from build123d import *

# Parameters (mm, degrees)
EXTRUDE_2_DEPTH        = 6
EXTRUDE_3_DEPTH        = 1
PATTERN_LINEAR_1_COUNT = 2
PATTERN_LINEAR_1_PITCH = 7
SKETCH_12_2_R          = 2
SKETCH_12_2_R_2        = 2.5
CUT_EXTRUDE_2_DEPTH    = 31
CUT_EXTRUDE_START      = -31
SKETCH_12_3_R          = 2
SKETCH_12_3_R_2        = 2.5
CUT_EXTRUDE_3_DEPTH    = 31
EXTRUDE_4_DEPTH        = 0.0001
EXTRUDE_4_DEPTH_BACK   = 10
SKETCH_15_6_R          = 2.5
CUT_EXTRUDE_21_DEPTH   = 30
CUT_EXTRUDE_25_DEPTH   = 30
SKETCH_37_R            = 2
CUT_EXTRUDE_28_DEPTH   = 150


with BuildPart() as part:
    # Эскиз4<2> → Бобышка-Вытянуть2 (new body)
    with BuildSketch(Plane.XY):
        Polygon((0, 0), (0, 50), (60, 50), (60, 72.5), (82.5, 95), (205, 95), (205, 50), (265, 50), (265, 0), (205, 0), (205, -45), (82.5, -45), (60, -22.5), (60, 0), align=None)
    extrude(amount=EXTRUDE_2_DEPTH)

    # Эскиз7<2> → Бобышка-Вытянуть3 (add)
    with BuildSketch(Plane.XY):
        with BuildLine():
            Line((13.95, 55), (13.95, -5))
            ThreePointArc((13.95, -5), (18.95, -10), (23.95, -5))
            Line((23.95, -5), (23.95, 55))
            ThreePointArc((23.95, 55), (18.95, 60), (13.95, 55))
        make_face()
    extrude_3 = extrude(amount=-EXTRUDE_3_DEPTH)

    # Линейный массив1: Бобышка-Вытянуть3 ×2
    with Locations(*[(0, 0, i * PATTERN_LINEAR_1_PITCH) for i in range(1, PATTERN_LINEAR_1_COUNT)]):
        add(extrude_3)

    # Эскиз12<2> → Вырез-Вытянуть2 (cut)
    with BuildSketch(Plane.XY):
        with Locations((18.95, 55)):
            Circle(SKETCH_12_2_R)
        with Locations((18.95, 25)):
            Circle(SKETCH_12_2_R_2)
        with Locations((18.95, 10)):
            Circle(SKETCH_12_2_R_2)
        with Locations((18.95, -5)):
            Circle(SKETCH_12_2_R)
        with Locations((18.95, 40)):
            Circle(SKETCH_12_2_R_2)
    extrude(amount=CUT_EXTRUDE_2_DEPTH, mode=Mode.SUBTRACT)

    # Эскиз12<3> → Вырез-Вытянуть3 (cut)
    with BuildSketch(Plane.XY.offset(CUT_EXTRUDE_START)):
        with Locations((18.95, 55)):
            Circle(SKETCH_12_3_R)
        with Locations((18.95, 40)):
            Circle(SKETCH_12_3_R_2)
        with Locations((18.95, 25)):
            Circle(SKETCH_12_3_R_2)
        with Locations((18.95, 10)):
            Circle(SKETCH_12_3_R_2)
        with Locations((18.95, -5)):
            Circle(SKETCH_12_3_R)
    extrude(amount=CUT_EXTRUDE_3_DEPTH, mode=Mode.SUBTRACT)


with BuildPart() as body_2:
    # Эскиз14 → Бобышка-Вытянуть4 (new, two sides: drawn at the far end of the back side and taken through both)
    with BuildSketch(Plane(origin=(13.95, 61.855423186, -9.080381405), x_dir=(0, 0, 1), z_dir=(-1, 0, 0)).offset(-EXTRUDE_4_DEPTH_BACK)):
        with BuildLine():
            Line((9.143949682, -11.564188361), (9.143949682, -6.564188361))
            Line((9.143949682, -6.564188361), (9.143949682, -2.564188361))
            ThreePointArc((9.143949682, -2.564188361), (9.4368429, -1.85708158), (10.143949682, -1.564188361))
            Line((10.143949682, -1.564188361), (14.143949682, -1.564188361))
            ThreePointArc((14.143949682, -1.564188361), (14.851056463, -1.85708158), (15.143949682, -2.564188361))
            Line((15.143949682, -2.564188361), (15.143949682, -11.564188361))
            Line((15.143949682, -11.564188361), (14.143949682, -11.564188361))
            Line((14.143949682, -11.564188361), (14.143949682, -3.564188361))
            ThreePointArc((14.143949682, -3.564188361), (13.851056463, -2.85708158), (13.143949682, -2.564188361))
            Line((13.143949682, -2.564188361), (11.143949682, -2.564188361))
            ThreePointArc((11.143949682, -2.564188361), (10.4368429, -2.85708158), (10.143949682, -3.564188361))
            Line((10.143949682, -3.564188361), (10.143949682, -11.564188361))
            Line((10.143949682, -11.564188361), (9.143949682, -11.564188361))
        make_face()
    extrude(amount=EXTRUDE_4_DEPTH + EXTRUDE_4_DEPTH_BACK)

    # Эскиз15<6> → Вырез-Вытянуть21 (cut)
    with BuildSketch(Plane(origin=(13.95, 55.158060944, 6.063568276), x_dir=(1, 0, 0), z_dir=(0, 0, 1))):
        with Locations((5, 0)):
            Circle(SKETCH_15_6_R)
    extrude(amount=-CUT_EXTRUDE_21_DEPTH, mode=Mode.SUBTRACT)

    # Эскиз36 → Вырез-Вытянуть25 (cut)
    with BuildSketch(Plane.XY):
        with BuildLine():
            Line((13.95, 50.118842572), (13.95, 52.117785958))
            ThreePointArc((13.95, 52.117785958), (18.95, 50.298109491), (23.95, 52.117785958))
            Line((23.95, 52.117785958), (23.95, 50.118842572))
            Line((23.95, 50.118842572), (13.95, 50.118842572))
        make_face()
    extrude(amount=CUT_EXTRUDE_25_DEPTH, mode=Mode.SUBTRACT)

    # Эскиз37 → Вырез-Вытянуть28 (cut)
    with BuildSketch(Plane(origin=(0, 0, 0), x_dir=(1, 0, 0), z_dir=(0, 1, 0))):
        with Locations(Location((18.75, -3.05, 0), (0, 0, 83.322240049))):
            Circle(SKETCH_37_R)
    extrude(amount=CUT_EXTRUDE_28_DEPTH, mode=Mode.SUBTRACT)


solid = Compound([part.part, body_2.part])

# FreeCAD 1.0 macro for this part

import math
import FreeCAD as App
import Part
import Sketcher


def add_polygon(sketch, points):
    """Adds a closed chain of lines whose ends are joined by coincident constraints."""
    first, n = sketch.GeometryCount, len(points)
    for a, b in zip(points, points[1:] + points[:1]):
        sketch.addGeometry(Part.LineSegment(App.Vector(*a, 0), App.Vector(*b, 0)), False)
    for i in range(n):
        sketch.addConstraint(Sketcher.Constraint("Coincident", first + i, 2, first + (i + 1) % n, 1))

doc = App.newDocument("Part")
body = doc.addObject("PartDesign::Body", "Body")

# Sketch on XY plane
sketch1 = doc.addObject("Sketcher::SketchObject", "Sketch")
body.addObject(sketch1)
sketch1.AttachmentSupport = (doc.XY_Plane, [""])
sketch1.MapMode = "FlatFace"
add_polygon(sketch1, [(0, 50), (0, 0), (60, 0), (60, -22.5), (82.5, -45), (205, -45), (205, 0), (265, 0), (265, 50), (205, 50), (205, 95), (82.5, 95), (60, 72.5), (60, 50)])  # lines 0-13
sketch1.addConstraint([
    Sketcher.Constraint("Vertical", 0),
    Sketcher.Constraint("Horizontal", 1),
    Sketcher.Constraint("Vertical", 2),
    Sketcher.Constraint("Horizontal", 4),
    Sketcher.Constraint("Vertical", 5),
    Sketcher.Constraint("Horizontal", 6),
    Sketcher.Constraint("Vertical", 7),
    Sketcher.Constraint("Horizontal", 8),
    Sketcher.Constraint("Vertical", 9),
    Sketcher.Constraint("Horizontal", 10),
    Sketcher.Constraint("Vertical", 12),
    Sketcher.Constraint("Horizontal", 13),
    Sketcher.Constraint("Coincident", 0, 2, -1, 1),
    Sketcher.Constraint("PointOnObject", 5, 2, -1),
    Sketcher.Constraint("Perpendicular", 3, 11),
    Sketcher.Constraint("Horizontal", 8, 2, 12, 2),
    Sketcher.Constraint("Vertical", 5, 2, 8, 2),
    Sketcher.Constraint("Vertical", 3, 2, 10, 2),
    Sketcher.Constraint("Vertical", 2, 2, 11, 2),
    Sketcher.Constraint("Equal", 1, 6),
    Sketcher.Constraint("Equal", 5, 9),
    Sketcher.Constraint("Equal", 2, 12),
    Sketcher.Constraint("DistanceX", 1, 1, 1, 2, 60.0),
    Sketcher.Constraint("DistanceY", 0, 2, 0, 1, 50.0),
    Sketcher.Constraint("DistanceY", 5, 1, 5, 2, 45.0),
    Sketcher.Constraint("DistanceX", 4, 1, 4, 2, 122.5),
    Sketcher.Constraint("DistanceY", 2, 2, 2, 1, 22.5),
])
pad1 = doc.addObject("PartDesign::Pad", "Pad")
body.addObject(pad1)
pad1.Profile = sketch1
pad1.Length = 6

# Sketch on XY plane
sketch2 = doc.addObject("Sketcher::SketchObject", "Sketch001")
body.addObject(sketch2)
sketch2.AttachmentSupport = (doc.XY_Plane, [""])
sketch2.MapMode = "FlatFace"
sketch2.addGeometry([
    Part.LineSegment(App.Vector(13.95, 55, 0), App.Vector(13.95, -5, 0)),
    Part.ArcOfCircle(Part.Circle(App.Vector(18.95, -5, 0), App.Vector(0, 0, 1), 5), math.radians(180), math.radians(360)),
    Part.LineSegment(App.Vector(23.95, -5, 0), App.Vector(23.95, 55, 0)),
    Part.ArcOfCircle(Part.Circle(App.Vector(18.95, 55, 0), App.Vector(0, 0, 1), 5), math.radians(0), math.radians(180)),
], False)
sketch2.addConstraint([
    Sketcher.Constraint("Tangent", 0, 2, 1, 1),
    Sketcher.Constraint("Tangent", 1, 2, 2, 1),
    Sketcher.Constraint("Tangent", 2, 2, 3, 1),
    Sketcher.Constraint("Tangent", 3, 2, 0, 1),
    Sketcher.Constraint("Vertical", 0),
    Sketcher.Constraint("Vertical", 2),
    Sketcher.Constraint("Radius", 1, 5.0),
    Sketcher.Constraint("DistanceY", 0, 2, 0, 1, 60.0),
    Sketcher.Constraint("DistanceY", 1, 3, -1, 1, 5.0),
    Sketcher.Constraint("DistanceX", -1, 1, 1, 3, 18.95),
])
pad2 = doc.addObject("PartDesign::Pad", "Pad001")
body.addObject(pad2)
pad2.Profile = sketch2
pad2.Length = 1
pad2.Reversed = True
doc.recompute()

linearpattern = doc.addObject("PartDesign::LinearPattern", "LinearPattern")
body.addObject(linearpattern)
linearpattern.Originals = [pad2]
linearpattern.Direction = (doc.Z_Axis, [""])
linearpattern.Mode = "offset"
linearpattern.Offset = 7
linearpattern.Occurrences = 2
body.Tip = linearpattern

# Sketch on XY plane
sketch3 = doc.addObject("Sketcher::SketchObject", "Sketch002")
body.addObject(sketch3)
sketch3.AttachmentSupport = (doc.XY_Plane, [""])
sketch3.MapMode = "FlatFace"
sketch3.addGeometry([
    Part.Circle(App.Vector(18.95, 55, 0), App.Vector(0, 0, 1), 2),  # 0
    Part.Circle(App.Vector(18.95, 25, 0), App.Vector(0, 0, 1), 2.5),  # 1
    Part.Circle(App.Vector(18.95, 10, 0), App.Vector(0, 0, 1), 2.5),  # 2
    Part.Circle(App.Vector(18.95, -5, 0), App.Vector(0, 0, 1), 2),  # 3
    Part.Circle(App.Vector(18.95, 40, 0), App.Vector(0, 0, 1), 2.5),  # 4
], False)
sketch3.addConstraint([
    Sketcher.Constraint("Equal", 1, 2),
    Sketcher.Constraint("Equal", 0, 3),
    Sketcher.Constraint("Equal", 2, 4),
    Sketcher.Constraint("Vertical", 0, 3, 1, 3),
    Sketcher.Constraint("Vertical", 1, 3, 2, 3),
    Sketcher.Constraint("Vertical", 2, 3, 3, 3),
    Sketcher.Constraint("Vertical", 3, 3, 4, 3),
    Sketcher.Constraint("Diameter", 0, 4.0),
    Sketcher.Constraint("Diameter", 1, 5.0),
    Sketcher.Constraint("DistanceY", -1, 1, 0, 3, 55.0),
    Sketcher.Constraint("DistanceY", -1, 1, 1, 3, 25.0),
    Sketcher.Constraint("DistanceY", -1, 1, 2, 3, 10.0),
    Sketcher.Constraint("DistanceY", 3, 3, -1, 1, 5.0),
    Sketcher.Constraint("DistanceY", -1, 1, 4, 3, 40.0),
    Sketcher.Constraint("DistanceX", -1, 1, 0, 3, 18.95),
])
pocket1 = doc.addObject("PartDesign::Pocket", "Pocket")
body.addObject(pocket1)
pocket1.Profile = sketch3
pocket1.Length = 31
pocket1.Reversed = True

# Sketch on XY plane
sketch4 = doc.addObject("Sketcher::SketchObject", "Sketch003")
body.addObject(sketch4)
sketch4.AttachmentSupport = (doc.XY_Plane, [""])
sketch4.MapMode = "FlatFace"
sketch4.AttachmentOffset = App.Placement(App.Vector(0, 0, -31), App.Rotation())
sketch4.addGeometry([
    Part.Circle(App.Vector(18.95, 55, 0), App.Vector(0, 0, 1), 2),  # 0
    Part.Circle(App.Vector(18.95, 40, 0), App.Vector(0, 0, 1), 2.5),  # 1
    Part.Circle(App.Vector(18.95, 25, 0), App.Vector(0, 0, 1), 2.5),  # 2
    Part.Circle(App.Vector(18.95, 10, 0), App.Vector(0, 0, 1), 2.5),  # 3
    Part.Circle(App.Vector(18.95, -5, 0), App.Vector(0, 0, 1), 2),  # 4
], False)
sketch4.addConstraint([
    Sketcher.Constraint("Equal", 1, 2),
    Sketcher.Constraint("Equal", 2, 3),
    Sketcher.Constraint("Equal", 0, 4),
    Sketcher.Constraint("Vertical", 0, 3, 1, 3),
    Sketcher.Constraint("Vertical", 1, 3, 2, 3),
    Sketcher.Constraint("Vertical", 2, 3, 3, 3),
    Sketcher.Constraint("Vertical", 3, 3, 4, 3),
    Sketcher.Constraint("Diameter", 0, 4.0),
    Sketcher.Constraint("Diameter", 1, 5.0),
    Sketcher.Constraint("DistanceY", -1, 1, 0, 3, 55.0),
    Sketcher.Constraint("DistanceY", -1, 1, 1, 3, 40.0),
    Sketcher.Constraint("DistanceY", -1, 1, 2, 3, 25.0),
    Sketcher.Constraint("DistanceY", -1, 1, 3, 3, 10.0),
    Sketcher.Constraint("DistanceY", 4, 3, -1, 1, 5.0),
    Sketcher.Constraint("DistanceX", -1, 1, 0, 3, 18.95),
])
pocket2 = doc.addObject("PartDesign::Pocket", "Pocket001")
body.addObject(pocket2)
pocket2.Profile = sketch4
pocket2.Length = 31
pocket2.Reversed = True
body2 = doc.addObject("PartDesign::Body", "Body001")

# Sketch on YZ plane
sketch5 = doc.addObject("Sketcher::SketchObject", "Sketch004")
body2.addObject(sketch5)
sketch5.AttachmentSupport = (doc.getObject("YZ_Plane001"), [""])
sketch5.MapMode = "FlatFace"
sketch5.AttachmentOffset = App.Placement(App.Vector(0, 0, 13.95), App.Rotation())
sketch5.addGeometry([
    Part.LineSegment(App.Vector(59.291235, 0.063568, 0), App.Vector(50.291235, 0.063568, 0)),  # 0
    Part.LineSegment(App.Vector(50.291235, 0.063568, 0), App.Vector(50.291235, 1.063568, 0)),  # 1
    Part.LineSegment(App.Vector(50.291235, 1.063568, 0), App.Vector(58.291235, 1.063568, 0)),  # 2
    Part.ArcOfCircle(Part.Circle(App.Vector(58.291235, 2.063568, 0), App.Vector(0, 0, 1), 1), math.radians(-90), math.radians(0)),  # 3
    Part.LineSegment(App.Vector(59.291235, 2.063568, 0), App.Vector(59.291235, 4.063568, 0)),  # 4
    Part.ArcOfCircle(Part.Circle(App.Vector(58.291235, 4.063568, 0), App.Vector(0, 0, 1), 1), math.radians(0), math.radians(90)),  # 5
    Part.LineSegment(App.Vector(58.291235, 5.063568, 0), App.Vector(50.291235, 5.063568, 0)),  # 6
    Part.LineSegment(App.Vector(50.291235, 5.063568, 0), App.Vector(50.291235, 6.063568, 0)),  # 7
    Part.LineSegment(App.Vector(50.291235, 6.063568, 0), App.Vector(59.291235, 6.063568, 0)),  # 8
    Part.ArcOfCircle(Part.Circle(App.Vector(59.291235, 5.063568, 0), App.Vector(0, 0, 1), 1), math.radians(0), math.radians(90)),  # 9
    Part.LineSegment(App.Vector(60.291235, 5.063568, 0), App.Vector(60.291235, 1.063568, 0)),  # 10
    Part.ArcOfCircle(Part.Circle(App.Vector(59.291235, 1.063568, 0), App.Vector(0, 0, 1), 1), math.radians(-90), math.radians(0)),  # 11
], False)
sketch5.addConstraint([
    Sketcher.Constraint("Coincident", 0, 2, 1, 1),
    Sketcher.Constraint("Coincident", 1, 2, 2, 1),
    Sketcher.Constraint("Tangent", 2, 2, 3, 1),
    Sketcher.Constraint("Tangent", 3, 2, 4, 1),
    Sketcher.Constraint("Tangent", 4, 2, 5, 1),
    Sketcher.Constraint("Tangent", 5, 2, 6, 1),
    Sketcher.Constraint("Coincident", 6, 2, 7, 1),
    Sketcher.Constraint("Coincident", 7, 2, 8, 1),
    Sketcher.Constraint("Tangent", 8, 2, 9, 2),
    Sketcher.Constraint("Tangent", 9, 1, 10, 1),
    Sketcher.Constraint("Tangent", 10, 2, 11, 2),
    Sketcher.Constraint("Tangent", 11, 1, 0, 1),
    Sketcher.Constraint("Horizontal", 0),
    Sketcher.Constraint("Vertical", 1),
    Sketcher.Constraint("Horizontal", 2),
    Sketcher.Constraint("Vertical", 4),
    Sketcher.Constraint("Horizontal", 6),
    Sketcher.Constraint("Vertical", 7),
    Sketcher.Constraint("Horizontal", 8),
    Sketcher.Constraint("Vertical", 10),
    Sketcher.Constraint("Equal", 3, 5),
    Sketcher.Constraint("Equal", 5, 9),
    Sketcher.Constraint("Equal", 9, 11),
    Sketcher.Constraint("Horizontal", 11, 3, 1, 2),
    Sketcher.Constraint("Horizontal", 9, 3, 5, 2),
    Sketcher.Constraint("Vertical", 11, 3, 3, 2),
    Sketcher.Constraint("Vertical", 1, 2, 6, 2),
    Sketcher.Constraint("Radius", 3, 1.0),
    Sketcher.Constraint("DistanceX", 0, 2, 0, 1, 9.0),
    Sketcher.Constraint("DistanceY", 4, 1, 4, 2, 2.0),
    Sketcher.Constraint("DistanceY", -1, 1, 3, 3, 2.063568),
    Sketcher.Constraint("DistanceX", -1, 1, 3, 3, 58.291235),
])
pad3 = doc.addObject("PartDesign::Pad", "Pad002")
body2.addObject(pad3)
pad3.Profile = sketch5
pad3.Type = "TwoLengths"
pad3.Length = 0.0001
pad3.Length2 = 10
pad3.Reversed = True

# Sketch on XY plane
sketch6 = doc.addObject("Sketcher::SketchObject", "Sketch005")
body2.addObject(sketch6)
sketch6.AttachmentSupport = (doc.getObject("XY_Plane001"), [""])
sketch6.MapMode = "FlatFace"
sketch6.AttachmentOffset = App.Placement(App.Vector(0, 0, 6.063568), App.Rotation())
sketch6.addGeometry(Part.Circle(App.Vector(18.95, 55.158061, 0), App.Vector(0, 0, 1), 2.5), False)
sketch6.addConstraint([
    Sketcher.Constraint("Diameter", 0, 5.0),
    Sketcher.Constraint("DistanceX", -1, 1, 0, 3, 18.95),
    Sketcher.Constraint("DistanceY", -1, 1, 0, 3, 55.158061),
])
pocket3 = doc.addObject("PartDesign::Pocket", "Pocket002")
body2.addObject(pocket3)
pocket3.Profile = sketch6
pocket3.Length = 30

# Sketch on XY plane
sketch7 = doc.addObject("Sketcher::SketchObject", "Sketch006")
body2.addObject(sketch7)
sketch7.AttachmentSupport = (doc.getObject("XY_Plane001"), [""])
sketch7.MapMode = "FlatFace"
sketch7.addGeometry([
    Part.LineSegment(App.Vector(13.95, 52.117786, 0), App.Vector(13.95, 50.118843, 0)),
    Part.LineSegment(App.Vector(13.95, 50.118843, 0), App.Vector(23.95, 50.118843, 0)),
    Part.LineSegment(App.Vector(23.95, 50.118843, 0), App.Vector(23.95, 52.117786, 0)),
    Part.ArcOfCircle(Part.Circle(App.Vector(18.95, 58.077301, 0), App.Vector(0, 0, 1), 7.779191), math.radians(-129.996464), math.radians(-50.003536)),
], False)
sketch7.addConstraint([
    Sketcher.Constraint("Coincident", 0, 2, 1, 1),
    Sketcher.Constraint("Coincident", 1, 2, 2, 1),
    Sketcher.Constraint("Coincident", 2, 2, 3, 2),
    Sketcher.Constraint("Coincident", 3, 1, 0, 1),
    Sketcher.Constraint("Vertical", 0),
    Sketcher.Constraint("Horizontal", 1),
    Sketcher.Constraint("Vertical", 2),
    Sketcher.Constraint("Horizontal", 2, 2, 3, 1),
    Sketcher.Constraint("DistanceX", 1, 1, 1, 2, 10.0),
    Sketcher.Constraint("DistanceX", -1, 1, 3, 3, 18.95),
    Sketcher.Constraint("Radius", 3, 7.779191),
    Sketcher.Constraint("DistanceY", -1, 1, 3, 3, 58.077301),
    Sketcher.Constraint("DistanceY", 0, 2, 0, 1, 1.998943),
])
pocket4 = doc.addObject("PartDesign::Pocket", "Pocket003")
body2.addObject(pocket4)
pocket4.Profile = sketch7
pocket4.Length = 30
pocket4.Reversed = True

# Sketch on XZ plane
sketch8 = doc.addObject("Sketcher::SketchObject", "Sketch007")
body2.addObject(sketch8)
sketch8.AttachmentSupport = (doc.getObject("XZ_Plane001"), [""])
sketch8.MapMode = "FlatFace"
sketch8.addGeometry(Part.Circle(App.Vector(18.75, 3.05, 0), App.Vector(0, 0, 1), 2), False)
sketch8.addConstraint([
    Sketcher.Constraint("Diameter", 0, 4.0),
    Sketcher.Constraint("DistanceX", -1, 1, 0, 3, 18.75),
    Sketcher.Constraint("DistanceY", -1, 1, 0, 3, 3.05),
])
pocket5 = doc.addObject("PartDesign::Pocket", "Pocket004")
body2.addObject(pocket5)
pocket5.Profile = sketch8
pocket5.Length = 150

doc.recompute()
